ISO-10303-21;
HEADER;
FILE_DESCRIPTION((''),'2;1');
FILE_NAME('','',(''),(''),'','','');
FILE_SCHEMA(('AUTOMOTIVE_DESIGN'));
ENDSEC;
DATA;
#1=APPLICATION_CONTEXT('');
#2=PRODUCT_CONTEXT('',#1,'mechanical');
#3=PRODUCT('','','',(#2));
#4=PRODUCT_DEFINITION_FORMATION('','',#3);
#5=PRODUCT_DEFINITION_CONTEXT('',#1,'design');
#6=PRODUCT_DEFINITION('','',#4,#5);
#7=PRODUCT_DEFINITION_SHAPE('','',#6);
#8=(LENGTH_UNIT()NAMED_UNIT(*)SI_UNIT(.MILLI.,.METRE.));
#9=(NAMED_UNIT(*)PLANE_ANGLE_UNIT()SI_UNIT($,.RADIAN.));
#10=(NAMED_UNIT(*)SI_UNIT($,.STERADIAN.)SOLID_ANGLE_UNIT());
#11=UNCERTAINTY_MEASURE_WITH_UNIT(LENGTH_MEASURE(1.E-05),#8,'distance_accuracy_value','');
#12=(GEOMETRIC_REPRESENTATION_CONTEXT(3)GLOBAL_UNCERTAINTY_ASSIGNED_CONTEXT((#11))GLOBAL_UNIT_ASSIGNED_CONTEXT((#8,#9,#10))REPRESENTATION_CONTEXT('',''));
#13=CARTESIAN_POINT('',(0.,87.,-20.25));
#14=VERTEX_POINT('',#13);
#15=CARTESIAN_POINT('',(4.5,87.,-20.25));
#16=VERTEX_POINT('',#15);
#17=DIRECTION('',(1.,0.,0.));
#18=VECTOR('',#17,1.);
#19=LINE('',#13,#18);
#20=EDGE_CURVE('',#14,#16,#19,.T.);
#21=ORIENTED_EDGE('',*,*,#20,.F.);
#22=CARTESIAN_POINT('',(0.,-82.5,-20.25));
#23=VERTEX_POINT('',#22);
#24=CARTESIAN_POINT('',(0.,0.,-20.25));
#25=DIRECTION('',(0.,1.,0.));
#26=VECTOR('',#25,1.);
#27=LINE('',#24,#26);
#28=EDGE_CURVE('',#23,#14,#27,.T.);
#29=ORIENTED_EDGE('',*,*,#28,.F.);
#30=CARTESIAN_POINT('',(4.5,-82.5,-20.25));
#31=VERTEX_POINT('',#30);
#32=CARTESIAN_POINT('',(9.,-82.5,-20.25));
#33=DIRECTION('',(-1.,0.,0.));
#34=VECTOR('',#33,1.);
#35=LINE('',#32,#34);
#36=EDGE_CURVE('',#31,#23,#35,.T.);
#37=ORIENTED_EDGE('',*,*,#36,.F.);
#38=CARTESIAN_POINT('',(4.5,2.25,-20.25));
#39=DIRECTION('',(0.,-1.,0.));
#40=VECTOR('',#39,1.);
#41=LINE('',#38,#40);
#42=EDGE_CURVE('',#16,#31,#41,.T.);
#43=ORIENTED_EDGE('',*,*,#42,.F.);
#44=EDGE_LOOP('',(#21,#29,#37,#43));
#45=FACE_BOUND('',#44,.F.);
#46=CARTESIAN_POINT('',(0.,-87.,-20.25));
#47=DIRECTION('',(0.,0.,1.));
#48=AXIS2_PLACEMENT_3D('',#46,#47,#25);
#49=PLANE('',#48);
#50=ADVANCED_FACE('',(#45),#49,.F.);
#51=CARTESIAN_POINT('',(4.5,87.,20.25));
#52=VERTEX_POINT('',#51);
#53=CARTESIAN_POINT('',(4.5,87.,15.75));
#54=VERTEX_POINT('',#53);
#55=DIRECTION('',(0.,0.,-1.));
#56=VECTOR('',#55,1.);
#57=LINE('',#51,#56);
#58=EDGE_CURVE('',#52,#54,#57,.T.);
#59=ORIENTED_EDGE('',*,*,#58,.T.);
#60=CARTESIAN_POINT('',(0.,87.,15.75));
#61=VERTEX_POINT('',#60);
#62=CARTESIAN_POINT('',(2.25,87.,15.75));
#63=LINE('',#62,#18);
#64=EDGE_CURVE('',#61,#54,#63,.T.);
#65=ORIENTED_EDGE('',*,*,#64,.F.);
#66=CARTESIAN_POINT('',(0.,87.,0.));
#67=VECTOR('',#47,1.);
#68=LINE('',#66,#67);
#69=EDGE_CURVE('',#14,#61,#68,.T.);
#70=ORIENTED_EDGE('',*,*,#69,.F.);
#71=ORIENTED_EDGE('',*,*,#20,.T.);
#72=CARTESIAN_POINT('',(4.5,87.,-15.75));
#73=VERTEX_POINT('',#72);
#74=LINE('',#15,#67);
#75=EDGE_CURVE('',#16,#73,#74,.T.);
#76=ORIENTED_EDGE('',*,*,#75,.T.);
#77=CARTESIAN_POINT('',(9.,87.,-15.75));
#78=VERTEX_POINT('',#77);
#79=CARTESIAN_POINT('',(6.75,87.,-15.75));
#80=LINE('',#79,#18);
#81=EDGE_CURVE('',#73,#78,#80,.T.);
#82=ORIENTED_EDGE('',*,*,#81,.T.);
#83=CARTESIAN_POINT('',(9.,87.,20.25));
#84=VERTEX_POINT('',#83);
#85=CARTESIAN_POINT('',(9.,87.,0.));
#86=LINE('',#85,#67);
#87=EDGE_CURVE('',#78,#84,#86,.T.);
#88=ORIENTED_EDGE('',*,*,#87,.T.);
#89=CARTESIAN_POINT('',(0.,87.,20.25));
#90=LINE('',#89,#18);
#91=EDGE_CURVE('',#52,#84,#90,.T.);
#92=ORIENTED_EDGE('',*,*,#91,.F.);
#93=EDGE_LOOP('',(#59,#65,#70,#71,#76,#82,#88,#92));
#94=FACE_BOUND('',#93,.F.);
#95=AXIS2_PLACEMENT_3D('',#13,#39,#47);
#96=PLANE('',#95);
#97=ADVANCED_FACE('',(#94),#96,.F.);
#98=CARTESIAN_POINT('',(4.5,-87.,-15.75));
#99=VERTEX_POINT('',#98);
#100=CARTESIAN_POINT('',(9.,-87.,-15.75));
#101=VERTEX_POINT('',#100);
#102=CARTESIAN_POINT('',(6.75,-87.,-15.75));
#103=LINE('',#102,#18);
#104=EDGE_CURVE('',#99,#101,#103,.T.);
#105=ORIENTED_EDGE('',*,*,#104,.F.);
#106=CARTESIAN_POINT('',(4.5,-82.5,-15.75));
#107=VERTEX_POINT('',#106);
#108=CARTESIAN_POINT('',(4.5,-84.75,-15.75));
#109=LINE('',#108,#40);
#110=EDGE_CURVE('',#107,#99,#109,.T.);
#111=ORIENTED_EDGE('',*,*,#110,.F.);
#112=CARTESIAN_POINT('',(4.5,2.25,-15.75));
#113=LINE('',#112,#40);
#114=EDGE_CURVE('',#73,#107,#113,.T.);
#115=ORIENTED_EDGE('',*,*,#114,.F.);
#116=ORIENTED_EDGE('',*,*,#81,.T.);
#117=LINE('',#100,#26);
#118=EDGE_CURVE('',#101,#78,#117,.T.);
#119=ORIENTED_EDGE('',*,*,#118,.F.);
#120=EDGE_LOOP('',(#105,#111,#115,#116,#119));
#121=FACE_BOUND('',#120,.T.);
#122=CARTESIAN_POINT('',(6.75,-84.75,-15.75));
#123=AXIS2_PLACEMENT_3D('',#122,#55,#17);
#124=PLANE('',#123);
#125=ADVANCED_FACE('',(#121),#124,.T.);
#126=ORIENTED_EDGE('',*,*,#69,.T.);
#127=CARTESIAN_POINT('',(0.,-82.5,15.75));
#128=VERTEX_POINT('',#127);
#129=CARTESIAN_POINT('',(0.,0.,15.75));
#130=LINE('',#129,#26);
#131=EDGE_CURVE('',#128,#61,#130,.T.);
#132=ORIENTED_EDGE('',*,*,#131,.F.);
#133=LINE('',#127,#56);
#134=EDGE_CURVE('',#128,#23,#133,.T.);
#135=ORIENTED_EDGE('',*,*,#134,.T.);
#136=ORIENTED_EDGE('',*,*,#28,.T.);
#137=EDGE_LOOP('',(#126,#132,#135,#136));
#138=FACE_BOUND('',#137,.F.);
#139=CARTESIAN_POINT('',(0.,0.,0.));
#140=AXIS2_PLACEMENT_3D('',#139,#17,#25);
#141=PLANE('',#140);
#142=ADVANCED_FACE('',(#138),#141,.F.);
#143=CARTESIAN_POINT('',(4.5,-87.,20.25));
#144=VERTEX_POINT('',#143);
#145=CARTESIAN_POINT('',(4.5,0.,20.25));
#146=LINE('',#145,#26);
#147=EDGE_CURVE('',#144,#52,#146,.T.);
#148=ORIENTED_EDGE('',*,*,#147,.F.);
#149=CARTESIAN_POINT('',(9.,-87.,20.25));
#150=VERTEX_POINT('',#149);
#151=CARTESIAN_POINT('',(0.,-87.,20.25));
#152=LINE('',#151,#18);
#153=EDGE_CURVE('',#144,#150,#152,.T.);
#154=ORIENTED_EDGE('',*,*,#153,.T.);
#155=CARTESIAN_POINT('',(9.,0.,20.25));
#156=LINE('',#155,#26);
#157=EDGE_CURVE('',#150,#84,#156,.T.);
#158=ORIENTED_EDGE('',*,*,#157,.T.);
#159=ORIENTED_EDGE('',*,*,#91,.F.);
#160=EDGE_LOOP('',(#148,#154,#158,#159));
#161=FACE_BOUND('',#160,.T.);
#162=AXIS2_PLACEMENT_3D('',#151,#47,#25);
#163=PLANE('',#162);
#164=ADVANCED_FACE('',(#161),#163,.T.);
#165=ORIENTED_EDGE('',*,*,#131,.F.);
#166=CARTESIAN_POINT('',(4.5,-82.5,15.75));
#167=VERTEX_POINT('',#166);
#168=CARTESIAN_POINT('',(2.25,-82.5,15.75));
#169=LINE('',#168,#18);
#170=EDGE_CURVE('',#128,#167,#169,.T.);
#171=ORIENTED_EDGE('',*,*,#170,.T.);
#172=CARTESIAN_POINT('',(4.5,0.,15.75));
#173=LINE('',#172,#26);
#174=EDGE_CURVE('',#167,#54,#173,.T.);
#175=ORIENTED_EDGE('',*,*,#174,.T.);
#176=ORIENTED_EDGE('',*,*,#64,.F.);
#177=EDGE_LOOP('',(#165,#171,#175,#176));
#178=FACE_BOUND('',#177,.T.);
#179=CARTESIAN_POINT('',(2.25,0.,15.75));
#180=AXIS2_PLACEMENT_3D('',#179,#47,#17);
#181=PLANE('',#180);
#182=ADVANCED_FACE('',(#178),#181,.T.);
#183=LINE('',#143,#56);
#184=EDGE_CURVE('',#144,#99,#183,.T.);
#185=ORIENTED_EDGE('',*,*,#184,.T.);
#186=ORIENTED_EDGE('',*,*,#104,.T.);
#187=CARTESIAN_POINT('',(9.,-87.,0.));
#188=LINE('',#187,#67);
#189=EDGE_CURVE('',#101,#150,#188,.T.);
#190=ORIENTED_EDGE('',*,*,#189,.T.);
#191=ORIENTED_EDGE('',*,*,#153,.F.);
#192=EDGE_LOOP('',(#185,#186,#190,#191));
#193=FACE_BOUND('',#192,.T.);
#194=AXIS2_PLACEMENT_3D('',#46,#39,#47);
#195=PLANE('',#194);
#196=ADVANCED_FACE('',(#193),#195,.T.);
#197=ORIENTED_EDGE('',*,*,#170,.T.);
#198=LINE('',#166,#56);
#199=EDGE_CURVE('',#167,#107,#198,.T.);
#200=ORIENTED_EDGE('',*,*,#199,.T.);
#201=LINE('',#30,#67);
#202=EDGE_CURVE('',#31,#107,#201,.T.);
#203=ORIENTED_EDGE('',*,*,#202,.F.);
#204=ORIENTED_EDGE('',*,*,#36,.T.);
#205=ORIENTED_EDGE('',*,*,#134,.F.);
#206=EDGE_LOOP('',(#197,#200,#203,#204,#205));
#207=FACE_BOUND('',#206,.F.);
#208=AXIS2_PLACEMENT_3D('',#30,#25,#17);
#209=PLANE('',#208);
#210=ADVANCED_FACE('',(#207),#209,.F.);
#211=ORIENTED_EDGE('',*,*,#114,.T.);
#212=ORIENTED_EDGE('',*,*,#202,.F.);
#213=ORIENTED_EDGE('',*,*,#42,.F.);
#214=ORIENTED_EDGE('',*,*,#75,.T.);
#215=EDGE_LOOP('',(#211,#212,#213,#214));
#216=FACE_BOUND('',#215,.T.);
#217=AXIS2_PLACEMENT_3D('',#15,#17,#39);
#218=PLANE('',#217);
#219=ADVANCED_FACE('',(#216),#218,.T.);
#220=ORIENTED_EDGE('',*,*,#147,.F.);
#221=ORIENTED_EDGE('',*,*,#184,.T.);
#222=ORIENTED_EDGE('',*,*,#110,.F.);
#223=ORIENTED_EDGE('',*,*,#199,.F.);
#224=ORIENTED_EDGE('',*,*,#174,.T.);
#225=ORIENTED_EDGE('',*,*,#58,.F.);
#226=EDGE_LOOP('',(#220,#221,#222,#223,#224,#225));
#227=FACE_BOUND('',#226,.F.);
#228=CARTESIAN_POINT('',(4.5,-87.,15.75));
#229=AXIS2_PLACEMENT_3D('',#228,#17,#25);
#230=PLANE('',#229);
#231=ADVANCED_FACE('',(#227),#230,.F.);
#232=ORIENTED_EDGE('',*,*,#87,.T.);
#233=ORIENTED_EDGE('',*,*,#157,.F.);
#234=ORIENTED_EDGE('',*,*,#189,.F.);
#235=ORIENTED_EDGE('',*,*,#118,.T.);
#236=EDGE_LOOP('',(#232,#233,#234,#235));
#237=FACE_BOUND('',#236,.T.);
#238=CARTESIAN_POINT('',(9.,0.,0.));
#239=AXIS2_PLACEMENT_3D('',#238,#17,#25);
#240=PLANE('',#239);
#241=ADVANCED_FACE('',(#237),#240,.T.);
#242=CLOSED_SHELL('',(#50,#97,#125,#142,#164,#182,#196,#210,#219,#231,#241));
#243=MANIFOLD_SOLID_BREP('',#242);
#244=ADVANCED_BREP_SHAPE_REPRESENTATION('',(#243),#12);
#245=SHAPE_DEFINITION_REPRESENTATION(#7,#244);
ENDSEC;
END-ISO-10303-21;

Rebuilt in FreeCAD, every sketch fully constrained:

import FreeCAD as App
import Part
import Sketcher
Q = App.Units.Quantity

doc = App.newDocument("Part")
body = doc.addObject("PartDesign::Body", "Body")

sketch1 = body.newObject("Sketcher::SketchObject", "Sketch")
sketch1.AttachmentSupport = (doc.getObject("YZ_Plane"), [""])
sketch1.MapMode = "FlatFace"
sketch1.addGeometry([
    Part.LineSegment(App.Vector(-87, 20, 0), App.Vector(-87, -20, 0)),
    Part.LineSegment(App.Vector(-87, -20, 0), App.Vector(87, -20, 0)),
    Part.LineSegment(App.Vector(87, -20, 0), App.Vector(87, 20, 0)),
    Part.LineSegment(App.Vector(87, 20, 0), App.Vector(-87, 20, 0)),
], False)
sketch1.addConstraint([
    Sketcher.Constraint("Coincident", 0, 2, 1, 1),
    Sketcher.Constraint("Coincident", 1, 2, 2, 1),
    Sketcher.Constraint("Coincident", 2, 2, 3, 1),
    Sketcher.Constraint("Coincident", 3, 2, 0, 1),
    Sketcher.Constraint("Vertical", 0),
    Sketcher.Constraint("Horizontal", 1),
    Sketcher.Constraint("Vertical", 2),
    Sketcher.Constraint("Horizontal", 3),
    Sketcher.Constraint("Symmetric", 0, 2, 2, 2, -1, 1),
    Sketcher.Constraint("DistanceX", 1, 1, 1, 2, Q("174 mm")),
    Sketcher.Constraint("DistanceY", 0, 2, 0, 1, Q("40.5 mm")),
])
pad1 = body.newObject("PartDesign::Pad", "Pad")
pad1.Profile = sketch1
pad1.Length = 9

sketch2 = body.newObject("Sketcher::SketchObject", "Sketch001")
sketch2.AttachmentSupport = (doc.getObject("XY_Plane"), [""])
sketch2.MapMode = "FlatFace"
sketch2.AttachmentOffset = App.Placement(App.Vector(0, 0, 20.25), App.Rotation())
sketch2.addGeometry([
    Part.LineSegment(App.Vector(0, 87, 0), App.Vector(0, -87, 0)),
    Part.LineSegment(App.Vector(0, -87, 0), App.Vector(4.5, -87, 0)),
    Part.LineSegment(App.Vector(4.5, -87, 0), App.Vector(4.5, 87, 0)),
    Part.LineSegment(App.Vector(4.5, 87, 0), App.Vector(0, 87, 0)),
], False)
sketch2.addConstraint([
    Sketcher.Constraint("Coincident", 0, 2, 1, 1),
    Sketcher.Constraint("Coincident", 1, 2, 2, 1),
    Sketcher.Constraint("Coincident", 2, 2, 3, 1),
    Sketcher.Constraint("Coincident", 3, 2, 0, 1),
    Sketcher.Constraint("Vertical", 0),
    Sketcher.Constraint("Horizontal", 1),
    Sketcher.Constraint("Vertical", 2),
    Sketcher.Constraint("Horizontal", 3),
    Sketcher.Constraint("Symmetric", 0, 2, 3, 2, -1, 1),
    Sketcher.Constraint("DistanceY", 0, 2, 0, 1, Q("174 mm")),
    Sketcher.Constraint("DistanceX", 1, 1, 1, 2, Q("4.5 mm")),
])
pocket1 = body.newObject("PartDesign::Pocket", "Pocket")
pocket1.Profile = sketch2
pocket1.Length = 4.5

sketch3 = body.newObject("Sketcher::SketchObject", "Sketch002")
sketch3.AttachmentSupport = (doc.getObject("XY_Plane"), [""])
sketch3.MapMode = "FlatFace"
sketch3.AttachmentOffset = App.Placement(App.Vector(0, 0, 15.75), App.Rotation())
sketch3.addGeometry([
    Part.LineSegment(App.Vector(0, -82.5, 0), App.Vector(0, -87, 0)),
    Part.LineSegment(App.Vector(0, -87, 0), App.Vector(4.5, -87, 0)),
    Part.LineSegment(App.Vector(4.5, -87, 0), App.Vector(4.5, -82.5, 0)),
    Part.LineSegment(App.Vector(4.5, -82.5, 0), App.Vector(0, -82.5, 0)),
], False)
sketch3.addConstraint([
    Sketcher.Constraint("Coincident", 0, 2, 1, 1),
    Sketcher.Constraint("Coincident", 1, 2, 2, 1),
    Sketcher.Constraint("Coincident", 2, 2, 3, 1),
    Sketcher.Constraint("Coincident", 3, 2, 0, 1),
    Sketcher.Constraint("Vertical", 0),
    Sketcher.Constraint("Horizontal", 1),
    Sketcher.Constraint("Vertical", 2),
    Sketcher.Constraint("Horizontal", 3),
    Sketcher.Constraint("PointOnObject", 0, 2, -2),
    Sketcher.Constraint("Equal", 3, 0),
    Sketcher.Constraint("DistanceX", 1, 1, 1, 2, Q("4.5 mm")),
    Sketcher.Constraint("DistanceY", 0, 2, -1, 1, Q("87 mm")),
])
pocket2 = body.newObject("PartDesign::Pocket", "Pocket001")
pocket2.Profile = sketch3
pocket2.Type = "ThroughAll"

sketch4 = body.newObject("Sketcher::SketchObject", "Sketch003")
sketch4.AttachmentSupport = (doc.getObject("XY_Plane"), [""])
sketch4.MapMode = "FlatFace"
sketch4.AttachmentOffset = App.Placement(App.Vector(0, 0, -20.25), App.Rotation())
sketch4.addGeometry([
    Part.LineSegment(App.Vector(4.5, -87, 0), App.Vector(4.5, -82.5, 0)),
    Part.LineSegment(App.Vector(4.5, -82.5, 0), App.Vector(9, -82.5, 0)),
    Part.LineSegment(App.Vector(9, -82.5, 0), App.Vector(9, -87, 0)),
    Part.LineSegment(App.Vector(9, -87, 0), App.Vector(4.5, -87, 0)),
], False)
sketch4.addConstraint([
    Sketcher.Constraint("Coincident", 0, 2, 1, 1),
    Sketcher.Constraint("Coincident", 1, 2, 2, 1),
    Sketcher.Constraint("Coincident", 2, 2, 3, 1),
    Sketcher.Constraint("Coincident", 3, 2, 0, 1),
    Sketcher.Constraint("Vertical", 0),
    Sketcher.Constraint("Horizontal", 1),
    Sketcher.Constraint("Vertical", 2),
    Sketcher.Constraint("Horizontal", 3),
    Sketcher.Constraint("Equal", 3, 0),
    Sketcher.Constraint("DistanceX", 1, 1, 1, 2, Q("4.5 mm")),
    Sketcher.Constraint("DistanceX", -1, 1, 1, 2, Q("9 mm")),
    Sketcher.Constraint("DistanceY", 2, 2, -1, 1, Q("87 mm")),
])
pocket3 = body.newObject("PartDesign::Pocket", "Pocket002")
pocket3.Profile = sketch4
pocket3.Length = 4.5
pocket3.Reversed = True

sketch5 = body.newObject("Sketcher::SketchObject", "Sketch004")
sketch5.AttachmentSupport = (doc.getObject("XY_Plane"), [""])
sketch5.MapMode = "FlatFace"
sketch5.AttachmentOffset = App.Placement(App.Vector(0, 0, -20.25), App.Rotation())
sketch5.addGeometry([
    Part.LineSegment(App.Vector(4.5, -82.5, 0), App.Vector(4.5, 87, 0)),
    Part.LineSegment(App.Vector(4.5, 87, 0), App.Vector(9, 87, 0)),
    Part.LineSegment(App.Vector(9, 87, 0), App.Vector(9, -82.5, 0)),
    Part.LineSegment(App.Vector(9, -82.5, 0), App.Vector(4.5, -82.5, 0)),
], False)
sketch5.addConstraint([
    Sketcher.Constraint("Coincident", 0, 2, 1, 1),
    Sketcher.Constraint("Coincident", 1, 2, 2, 1),
    Sketcher.Constraint("Coincident", 2, 2, 3, 1),
    Sketcher.Constraint("Coincident", 3, 2, 0, 1),
    Sketcher.Constraint("Vertical", 0),
    Sketcher.Constraint("Horizontal", 1),
    Sketcher.Constraint("Vertical", 2),
    Sketcher.Constraint("Horizontal", 3),
    Sketcher.Constraint("DistanceX", 1, 1, 1, 2, Q("4.5 mm")),
    Sketcher.Constraint("DistanceY", 0, 1, 0, 2, Q("169.5 mm")),
    Sketcher.Constraint("DistanceY", -1, 1, 0, 2, Q("87 mm")),
    Sketcher.Constraint("DistanceX", -1, 1, 1, 2, Q("9 mm")),
])
pocket4 = body.newObject("PartDesign::Pocket", "Pocket003")
pocket4.Profile = sketch5
pocket4.Length = 4.5
pocket4.Reversed = True

doc.recompute()
